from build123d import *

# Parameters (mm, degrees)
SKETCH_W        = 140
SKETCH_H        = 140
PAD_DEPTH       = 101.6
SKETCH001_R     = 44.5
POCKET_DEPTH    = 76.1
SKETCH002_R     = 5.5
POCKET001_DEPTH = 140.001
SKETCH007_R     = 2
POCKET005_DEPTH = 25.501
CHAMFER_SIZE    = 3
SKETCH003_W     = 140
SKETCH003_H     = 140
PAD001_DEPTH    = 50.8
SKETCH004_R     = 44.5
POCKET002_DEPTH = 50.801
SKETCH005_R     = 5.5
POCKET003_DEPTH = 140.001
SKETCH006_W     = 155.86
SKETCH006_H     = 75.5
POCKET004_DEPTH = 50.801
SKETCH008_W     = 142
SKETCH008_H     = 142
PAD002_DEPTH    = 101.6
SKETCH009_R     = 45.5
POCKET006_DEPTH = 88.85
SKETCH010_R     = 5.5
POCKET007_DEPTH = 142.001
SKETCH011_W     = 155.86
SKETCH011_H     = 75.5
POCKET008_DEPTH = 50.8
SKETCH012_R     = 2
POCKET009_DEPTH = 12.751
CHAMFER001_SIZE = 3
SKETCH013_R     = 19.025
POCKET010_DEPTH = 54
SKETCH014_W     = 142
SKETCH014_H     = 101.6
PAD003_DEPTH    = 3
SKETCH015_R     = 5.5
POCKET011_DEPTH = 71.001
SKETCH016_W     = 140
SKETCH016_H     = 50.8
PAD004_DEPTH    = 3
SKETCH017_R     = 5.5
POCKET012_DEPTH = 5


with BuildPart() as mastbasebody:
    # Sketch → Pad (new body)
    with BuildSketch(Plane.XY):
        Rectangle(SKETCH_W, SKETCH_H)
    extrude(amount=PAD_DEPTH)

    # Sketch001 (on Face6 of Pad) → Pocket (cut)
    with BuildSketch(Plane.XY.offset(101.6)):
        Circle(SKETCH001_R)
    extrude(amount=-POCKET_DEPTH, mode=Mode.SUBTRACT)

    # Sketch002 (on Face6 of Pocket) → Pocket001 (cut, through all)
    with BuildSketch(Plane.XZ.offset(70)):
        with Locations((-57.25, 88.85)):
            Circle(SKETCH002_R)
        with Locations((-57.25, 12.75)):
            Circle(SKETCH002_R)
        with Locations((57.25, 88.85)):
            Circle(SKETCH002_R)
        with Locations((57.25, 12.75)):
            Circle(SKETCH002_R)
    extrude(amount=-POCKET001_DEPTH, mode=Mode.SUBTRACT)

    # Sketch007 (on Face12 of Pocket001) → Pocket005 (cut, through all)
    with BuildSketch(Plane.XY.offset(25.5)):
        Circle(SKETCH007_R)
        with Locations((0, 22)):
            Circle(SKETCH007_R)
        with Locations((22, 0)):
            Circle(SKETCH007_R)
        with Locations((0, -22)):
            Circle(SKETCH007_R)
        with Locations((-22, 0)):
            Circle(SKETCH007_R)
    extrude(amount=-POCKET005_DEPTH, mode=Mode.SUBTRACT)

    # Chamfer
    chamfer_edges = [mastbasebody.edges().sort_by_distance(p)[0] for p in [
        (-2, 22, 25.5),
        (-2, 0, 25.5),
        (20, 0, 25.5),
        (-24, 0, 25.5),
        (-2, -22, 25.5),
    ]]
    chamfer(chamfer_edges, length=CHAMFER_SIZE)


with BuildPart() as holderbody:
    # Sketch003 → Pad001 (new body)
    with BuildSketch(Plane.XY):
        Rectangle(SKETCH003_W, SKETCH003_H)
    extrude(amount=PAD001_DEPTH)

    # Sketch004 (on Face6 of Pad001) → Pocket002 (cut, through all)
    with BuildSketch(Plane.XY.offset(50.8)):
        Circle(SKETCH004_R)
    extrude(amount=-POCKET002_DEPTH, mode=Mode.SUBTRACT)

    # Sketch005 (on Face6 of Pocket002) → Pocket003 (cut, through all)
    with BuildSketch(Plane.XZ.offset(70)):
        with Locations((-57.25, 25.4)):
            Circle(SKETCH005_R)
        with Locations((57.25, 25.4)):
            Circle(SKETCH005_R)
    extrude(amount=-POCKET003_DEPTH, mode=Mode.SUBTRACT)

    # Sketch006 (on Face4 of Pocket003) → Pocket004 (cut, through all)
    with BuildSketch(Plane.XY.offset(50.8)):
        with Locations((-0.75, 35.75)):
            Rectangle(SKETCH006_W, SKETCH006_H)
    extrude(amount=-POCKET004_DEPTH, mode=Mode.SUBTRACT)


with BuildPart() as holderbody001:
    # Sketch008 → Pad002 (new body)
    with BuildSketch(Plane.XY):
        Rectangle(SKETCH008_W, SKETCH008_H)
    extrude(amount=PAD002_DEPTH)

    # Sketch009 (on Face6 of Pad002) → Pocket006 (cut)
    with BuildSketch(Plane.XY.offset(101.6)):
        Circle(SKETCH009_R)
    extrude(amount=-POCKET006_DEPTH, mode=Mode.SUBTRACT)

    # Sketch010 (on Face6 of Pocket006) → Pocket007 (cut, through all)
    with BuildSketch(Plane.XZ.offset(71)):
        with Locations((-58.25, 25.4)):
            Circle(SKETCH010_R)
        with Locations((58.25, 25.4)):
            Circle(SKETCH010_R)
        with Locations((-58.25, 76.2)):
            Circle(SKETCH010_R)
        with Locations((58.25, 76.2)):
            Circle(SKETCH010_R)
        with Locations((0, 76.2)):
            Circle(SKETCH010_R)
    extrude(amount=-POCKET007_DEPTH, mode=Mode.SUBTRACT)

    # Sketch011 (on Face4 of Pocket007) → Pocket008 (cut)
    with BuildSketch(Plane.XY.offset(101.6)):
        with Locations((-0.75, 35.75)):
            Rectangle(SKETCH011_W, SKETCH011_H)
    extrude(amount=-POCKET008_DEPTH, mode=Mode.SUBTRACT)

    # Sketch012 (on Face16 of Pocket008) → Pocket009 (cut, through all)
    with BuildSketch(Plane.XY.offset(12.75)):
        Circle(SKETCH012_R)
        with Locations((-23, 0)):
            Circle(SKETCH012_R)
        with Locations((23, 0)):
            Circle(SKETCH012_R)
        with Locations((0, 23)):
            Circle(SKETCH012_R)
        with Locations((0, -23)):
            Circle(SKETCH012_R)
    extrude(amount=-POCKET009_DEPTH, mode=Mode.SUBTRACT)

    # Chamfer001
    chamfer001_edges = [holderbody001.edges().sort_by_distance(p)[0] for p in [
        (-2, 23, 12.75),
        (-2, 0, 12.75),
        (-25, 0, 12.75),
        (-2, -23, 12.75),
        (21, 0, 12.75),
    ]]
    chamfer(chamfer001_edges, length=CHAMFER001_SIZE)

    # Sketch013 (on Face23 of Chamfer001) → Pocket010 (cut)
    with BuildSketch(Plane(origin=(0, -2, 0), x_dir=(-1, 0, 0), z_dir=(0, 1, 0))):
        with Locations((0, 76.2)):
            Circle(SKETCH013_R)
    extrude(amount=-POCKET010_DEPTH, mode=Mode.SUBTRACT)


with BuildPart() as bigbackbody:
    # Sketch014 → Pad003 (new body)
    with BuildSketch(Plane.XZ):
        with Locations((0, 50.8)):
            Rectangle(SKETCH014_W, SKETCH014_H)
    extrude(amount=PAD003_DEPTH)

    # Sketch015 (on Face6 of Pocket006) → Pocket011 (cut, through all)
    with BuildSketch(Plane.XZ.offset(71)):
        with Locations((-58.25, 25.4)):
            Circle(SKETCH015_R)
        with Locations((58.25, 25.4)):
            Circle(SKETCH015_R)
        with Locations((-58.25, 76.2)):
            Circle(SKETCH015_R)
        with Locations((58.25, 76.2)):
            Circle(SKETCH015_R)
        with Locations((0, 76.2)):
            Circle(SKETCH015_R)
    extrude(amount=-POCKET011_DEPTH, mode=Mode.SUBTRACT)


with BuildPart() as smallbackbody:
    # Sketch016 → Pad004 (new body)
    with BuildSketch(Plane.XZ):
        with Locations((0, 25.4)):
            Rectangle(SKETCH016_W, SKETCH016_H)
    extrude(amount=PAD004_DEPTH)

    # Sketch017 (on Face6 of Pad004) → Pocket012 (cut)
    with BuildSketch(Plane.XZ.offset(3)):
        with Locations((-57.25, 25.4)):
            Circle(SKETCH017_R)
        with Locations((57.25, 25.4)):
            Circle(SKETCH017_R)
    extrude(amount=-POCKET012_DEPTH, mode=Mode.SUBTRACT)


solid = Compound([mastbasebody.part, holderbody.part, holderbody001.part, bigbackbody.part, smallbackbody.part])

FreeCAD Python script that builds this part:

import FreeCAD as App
import Part
import Sketcher
from FreeCAD import Vector


def edges_at(feature, points):
    """Names of the edges that pass closest to the given points."""
    edges = feature.Shape.Edges
    near = lambda p: min(range(len(edges)), key=lambda i: edges[i].distToShape(Part.Vertex(*p))[0])
    return sorted({f"Edge{near(p) + 1}" for p in points})


def add_polygon(sketch, points):
    """Adds a closed chain of lines whose ends are joined by coincident constraints."""
    first, n = sketch.GeometryCount, len(points)
    for a, b in zip(points, points[1:] + points[:1]):
        sketch.addGeometry(Part.LineSegment(App.Vector(*a, 0), App.Vector(*b, 0)), False)
    for i in range(n):
        sketch.addConstraint(Sketcher.Constraint("Coincident", first + i, 2, first + (i + 1) % n, 1))

doc = App.newDocument("Part")
body = doc.addObject("PartDesign::Body", "Body")

# Sketch on XY plane
sketch1 = body.newObject("Sketcher::SketchObject", "Sketch")
sketch1.AttachmentSupport = (doc.getObject("XY_Plane"), [""])
sketch1.MapMode = "FlatFace"
add_polygon(sketch1, [(-70, 70), (-70, -70), (70, -70), (70, 70)])  # lines 0-3
sketch1.addConstraint(Sketcher.Constraint("Vertical", 0))
sketch1.addConstraint(Sketcher.Constraint("Horizontal", 1))
sketch1.addConstraint(Sketcher.Constraint("Vertical", 2))
sketch1.addConstraint(Sketcher.Constraint("Horizontal", 3))
sketch1.addConstraint(Sketcher.Constraint("Symmetric", 0, 2, 2, 2, -1, 1))
sketch1.addConstraint(Sketcher.Constraint("Equal", 3, 0))
sketch1.addConstraint(Sketcher.Constraint("DistanceX", 1, 1, 1, 2, 140.0))
pad1 = body.newObject("PartDesign::Pad", "Pad")
pad1.Profile = sketch1
pad1.Length = 101.6

# Sketch on XY plane
sketch2 = body.newObject("Sketcher::SketchObject", "Sketch001")
sketch2.AttachmentSupport = (doc.getObject("XY_Plane"), [""])
sketch2.MapMode = "FlatFace"
sketch2.AttachmentOffset = App.Placement(Vector(0, 0, 101.6), App.Rotation())
sketch2.addGeometry(Part.Circle(Vector(0, 0, 0), Vector(0, 0, 1), 44), False)
sketch2.addConstraint(Sketcher.Constraint("Coincident", 0, 3, -1, 1))
sketch2.addConstraint(Sketcher.Constraint("Diameter", 0, 89.0))
pocket1 = body.newObject("PartDesign::Pocket", "Pocket")
pocket1.Profile = sketch2
pocket1.Length = 76.1

# Sketch on XZ plane
sketch3 = body.newObject("Sketcher::SketchObject", "Sketch002")
sketch3.AttachmentSupport = (doc.getObject("XZ_Plane"), [""])
sketch3.MapMode = "FlatFace"
sketch3.AttachmentOffset = App.Placement(Vector(0, 0, 70), App.Rotation())
sketch3.addGeometry(Part.Circle(Vector(-57, 89, 0), Vector(0, 0, 1), 6), False)
sketch3.addGeometry(Part.Circle(Vector(-57, 13, 0), Vector(0, 0, 1), 6), False)
sketch3.addGeometry(Part.Circle(Vector(57, 89, 0), Vector(0, 0, 1), 6), False)
sketch3.addGeometry(Part.Circle(Vector(57, 13, 0), Vector(0, 0, 1), 6), False)
sketch3.addConstraint(Sketcher.Constraint("Equal", 0, 1))
sketch3.addConstraint(Sketcher.Constraint("Equal", 1, 2))
sketch3.addConstraint(Sketcher.Constraint("Equal", 2, 3))
sketch3.addConstraint(Sketcher.Constraint("Symmetric", 0, 3, 2, 3, -2))
sketch3.addConstraint(Sketcher.Constraint("Symmetric", 1, 3, 3, 3, -2))
sketch3.addConstraint(Sketcher.Constraint("Vertical", 0, 3, 1, 3))
sketch3.addConstraint(Sketcher.Constraint("Diameter", 0, 11.0))
sketch3.addConstraint(Sketcher.Constraint("DistanceY", 1, 3, 0, 3, 76.1))
sketch3.addConstraint(Sketcher.Constraint("DistanceX", 0, 3, 2, 3, 114.5))
sketch3.addConstraint(Sketcher.Constraint("DistanceY", -1, 1, 0, 3, 88.85))
pocket2 = body.newObject("PartDesign::Pocket", "Pocket001")
pocket2.Profile = sketch3
pocket2.Type = "ThroughAll"

# Sketch on XY plane
sketch4 = body.newObject("Sketcher::SketchObject", "Sketch003")
sketch4.AttachmentSupport = (doc.getObject("XY_Plane"), [""])
sketch4.MapMode = "FlatFace"
sketch4.AttachmentOffset = App.Placement(Vector(0, 0, 25.5), App.Rotation())
sketch4.addGeometry(Part.Circle(Vector(0, 0, 0), Vector(0, 0, 1), 2), False)
sketch4.addGeometry(Part.Circle(Vector(0, 22, 0), Vector(0, 0, 1), 2), False)
sketch4.addGeometry(Part.Circle(Vector(22, 0, 0), Vector(0, 0, 1), 2), False)
sketch4.addGeometry(Part.Circle(Vector(0, -22, 0), Vector(0, 0, 1), 2), False)
sketch4.addGeometry(Part.Circle(Vector(-22, 0, 0), Vector(0, 0, 1), 2), False)
sketch4.addConstraint(Sketcher.Constraint("Coincident", 0, 3, -1, 1))
sketch4.addConstraint(Sketcher.Constraint("Equal", 0, 1))
sketch4.addConstraint(Sketcher.Constraint("Equal", 1, 2))
sketch4.addConstraint(Sketcher.Constraint("Equal", 2, 3))
sketch4.addConstraint(Sketcher.Constraint("Equal", 3, 4))
sketch4.addConstraint(Sketcher.Constraint("Symmetric", 1, 3, 3, 3, -1, 1))
sketch4.addConstraint(Sketcher.Constraint("Symmetric", 2, 3, 4, 3, -1, 1))
sketch4.addConstraint(Sketcher.Constraint("PointOnObject", 1, 3, -2))
sketch4.addConstraint(Sketcher.Constraint("PointOnObject", 2, 3, -1))
sketch4.addConstraint(Sketcher.Constraint("Diameter", 0, 4.0))
sketch4.addConstraint(Sketcher.Constraint("DistanceY", -1, 1, 1, 3, 22.0))
sketch4.addConstraint(Sketcher.Constraint("DistanceX", -1, 1, 2, 3, 22.0))
pocket3 = body.newObject("PartDesign::Pocket", "Pocket002")
pocket3.Profile = sketch4
pocket3.Type = "ThroughAll"
doc.recompute()

chamfer = body.newObject("PartDesign::Chamfer", "Chamfer")
chamfer.Base = (pocket3, edges_at(pocket3, [
    (-2, 22, 25.5),
    (-2, 0, 25.5),
    (20, 0, 25.5),
    (-24, 0, 25.5),
    (-2, -22, 25.5),
]))
chamfer.Size = 3
body2 = doc.addObject("PartDesign::Body", "Body001")

# Sketch on XY plane
sketch5 = body2.newObject("Sketcher::SketchObject", "Sketch004")
sketch5.AttachmentSupport = (doc.getObject("XY_Plane001"), [""])
sketch5.MapMode = "FlatFace"
add_polygon(sketch5, [(-70, 70), (-70, -70), (70, -70), (70, 70)])  # lines 0-3
sketch5.addConstraint(Sketcher.Constraint("Vertical", 0))
sketch5.addConstraint(Sketcher.Constraint("Horizontal", 1))
sketch5.addConstraint(Sketcher.Constraint("Vertical", 2))
sketch5.addConstraint(Sketcher.Constraint("Horizontal", 3))
sketch5.addConstraint(Sketcher.Constraint("Symmetric", 0, 2, 2, 2, -1, 1))
sketch5.addConstraint(Sketcher.Constraint("Equal", 3, 0))
sketch5.addConstraint(Sketcher.Constraint("DistanceX", 1, 1, 1, 2, 140.0))
pad2 = body2.newObject("PartDesign::Pad", "Pad001")
pad2.Profile = sketch5
pad2.Length = 50.8

# Sketch on XY plane
sketch6 = body2.newObject("Sketcher::SketchObject", "Sketch005")
sketch6.AttachmentSupport = (doc.getObject("XY_Plane001"), [""])
sketch6.MapMode = "FlatFace"
sketch6.AttachmentOffset = App.Placement(Vector(0, 0, 50.8), App.Rotation())
sketch6.addGeometry(Part.Circle(Vector(0, 0, 0), Vector(0, 0, 1), 44), False)
sketch6.addConstraint(Sketcher.Constraint("Coincident", 0, 3, -1, 1))
sketch6.addConstraint(Sketcher.Constraint("Diameter", 0, 89.0))
pocket4 = body2.newObject("PartDesign::Pocket", "Pocket003")
pocket4.Profile = sketch6
pocket4.Type = "ThroughAll"

# Sketch on XZ plane
sketch7 = body2.newObject("Sketcher::SketchObject", "Sketch006")
sketch7.AttachmentSupport = (doc.getObject("XZ_Plane001"), [""])
sketch7.MapMode = "FlatFace"
sketch7.AttachmentOffset = App.Placement(Vector(0, 0, 70), App.Rotation())
sketch7.addGeometry(Part.Circle(Vector(-57, 25, 0), Vector(0, 0, 1), 6), False)
sketch7.addGeometry(Part.Circle(Vector(57, 25, 0), Vector(0, 0, 1), 6), False)
sketch7.addConstraint(Sketcher.Constraint("Equal", 0, 1))
sketch7.addConstraint(Sketcher.Constraint("Symmetric", 0, 3, 1, 3, -2))
sketch7.addConstraint(Sketcher.Constraint("Diameter", 0, 11.0))
sketch7.addConstraint(Sketcher.Constraint("DistanceY", -1, 1, 0, 3, 25.4))
sketch7.addConstraint(Sketcher.Constraint("DistanceX", 0, 3, 1, 3, 114.5))
pocket5 = body2.newObject("PartDesign::Pocket", "Pocket004")
pocket5.Profile = sketch7
pocket5.Type = "ThroughAll"

# Sketch on XY plane
sketch8 = body2.newObject("Sketcher::SketchObject", "Sketch007")
sketch8.AttachmentSupport = (doc.getObject("XY_Plane001"), [""])
sketch8.MapMode = "FlatFace"
sketch8.AttachmentOffset = App.Placement(Vector(0, 0, 50.8), App.Rotation())
add_polygon(sketch8, [(-79, 74), (-79, -2), (77, -2), (77, 74)])  # lines 0-3
sketch8.addConstraint(Sketcher.Constraint("Vertical", 0))
sketch8.addConstraint(Sketcher.Constraint("Horizontal", 1))
sketch8.addConstraint(Sketcher.Constraint("Vertical", 2))
sketch8.addConstraint(Sketcher.Constraint("Horizontal", 3))
sketch8.addConstraint(Sketcher.Constraint("DistanceY", 0, 2, 0, 1, 75.5))
sketch8.addConstraint(Sketcher.Constraint("DistanceY", 0, 2, -1, 1, 2.0))
sketch8.addConstraint(Sketcher.Constraint("DistanceX", 1, 1, 1, 2, 155.86))
sketch8.addConstraint(Sketcher.Constraint("DistanceX", 0, 2, -1, 1, 78.68))
pocket6 = body2.newObject("PartDesign::Pocket", "Pocket005")
pocket6.Profile = sketch8
pocket6.Type = "ThroughAll"
body3 = doc.addObject("PartDesign::Body", "Body002")

# Sketch on XY plane
sketch9 = body3.newObject("Sketcher::SketchObject", "Sketch008")
sketch9.AttachmentSupport = (doc.getObject("XY_Plane002"), [""])
sketch9.MapMode = "FlatFace"
add_polygon(sketch9, [(-71, 71), (-71, -71), (71, -71), (71, 71)])  # lines 0-3
sketch9.addConstraint(Sketcher.Constraint("Vertical", 0))
sketch9.addConstraint(Sketcher.Constraint("Horizontal", 1))
sketch9.addConstraint(Sketcher.Constraint("Vertical", 2))
sketch9.addConstraint(Sketcher.Constraint("Horizontal", 3))
sketch9.addConstraint(Sketcher.Constraint("Symmetric", 0, 2, 2, 2, -1, 1))
sketch9.addConstraint(Sketcher.Constraint("Equal", 3, 0))
sketch9.addConstraint(Sketcher.Constraint("DistanceX", 1, 1, 1, 2, 142.0))
pad3 = body3.newObject("PartDesign::Pad", "Pad002")
pad3.Profile = sketch9
pad3.Length = 101.6

# Sketch on XY plane
sketch10 = body3.newObject("Sketcher::SketchObject", "Sketch009")
sketch10.AttachmentSupport = (doc.getObject("XY_Plane002"), [""])
sketch10.MapMode = "FlatFace"
sketch10.AttachmentOffset = App.Placement(Vector(0, 0, 101.6), App.Rotation())
sketch10.addGeometry(Part.Circle(Vector(0, 0, 0), Vector(0, 0, 1), 46), False)
sketch10.addConstraint(Sketcher.Constraint("Coincident", 0, 3, -1, 1))
sketch10.addConstraint(Sketcher.Constraint("Diameter", 0, 91.0))
pocket7 = body3.newObject("PartDesign::Pocket", "Pocket006")
pocket7.Profile = sketch10
pocket7.Length = 88.85

# Sketch on XZ plane
sketch11 = body3.newObject("Sketcher::SketchObject", "Sketch010")
sketch11.AttachmentSupport = (doc.getObject("XZ_Plane002"), [""])
sketch11.MapMode = "FlatFace"
sketch11.AttachmentOffset = App.Placement(Vector(0, 0, 71), App.Rotation())
sketch11.addGeometry(Part.Circle(Vector(-58, 25, 0), Vector(0, 0, 1), 6), False)
sketch11.addGeometry(Part.Circle(Vector(58, 25, 0), Vector(0, 0, 1), 6), False)
sketch11.addGeometry(Part.Circle(Vector(-58, 76, 0), Vector(0, 0, 1), 6), False)
sketch11.addGeometry(Part.Circle(Vector(58, 76, 0), Vector(0, 0, 1), 6), False)
sketch11.addGeometry(Part.Circle(Vector(0, 76, 0), Vector(0, 0, 1), 6), False)
sketch11.addConstraint(Sketcher.Constraint("Equal", 0, 1))
sketch11.addConstraint(Sketcher.Constraint("Equal", 1, 2))
sketch11.addConstraint(Sketcher.Constraint("Equal", 2, 3))
sketch11.addConstraint(Sketcher.Constraint("Equal", 3, 4))
sketch11.addConstraint(Sketcher.Constraint("Symmetric", 0, 3, 1, 3, -2))
sketch11.addConstraint(Sketcher.Constraint("Symmetric", 2, 3, 3, 3, -2))
sketch11.addConstraint(Sketcher.Constraint("PointOnObject", 4, 3, -2))
sketch11.addConstraint(Sketcher.Constraint("Horizontal", 3, 3, 4, 3))
sketch11.addConstraint(Sketcher.Constraint("Vertical", 0, 3, 2, 3))
sketch11.addConstraint(Sketcher.Constraint("Diameter", 0, 11.0))
sketch11.addConstraint(Sketcher.Constraint("DistanceY", -1, 1, 0, 3, 25.4))
sketch11.addConstraint(Sketcher.Constraint("DistanceY", -1, 1, 2, 3, 76.2))
sketch11.addConstraint(Sketcher.Constraint("DistanceX", 0, 3, 1, 3, 116.5))
pocket8 = body3.newObject("PartDesign::Pocket", "Pocket007")
pocket8.Profile = sketch11
pocket8.Type = "ThroughAll"

# Sketch on XY plane
sketch12 = body3.newObject("Sketcher::SketchObject", "Sketch011")
sketch12.AttachmentSupport = (doc.getObject("XY_Plane002"), [""])
sketch12.MapMode = "FlatFace"
sketch12.AttachmentOffset = App.Placement(Vector(0, 0, 101.6), App.Rotation())
add_polygon(sketch12, [(-79, 74), (-79, -2), (77, -2), (77, 74)])  # lines 0-3
sketch12.addConstraint(Sketcher.Constraint("Vertical", 0))
sketch12.addConstraint(Sketcher.Constraint("Horizontal", 1))
sketch12.addConstraint(Sketcher.Constraint("Vertical", 2))
sketch12.addConstraint(Sketcher.Constraint("Horizontal", 3))
sketch12.addConstraint(Sketcher.Constraint("DistanceY", 0, 2, 0, 1, 75.5))
sketch12.addConstraint(Sketcher.Constraint("DistanceY", 0, 2, -1, 1, 2.0))
sketch12.addConstraint(Sketcher.Constraint("DistanceX", 1, 1, 1, 2, 155.86))
sketch12.addConstraint(Sketcher.Constraint("DistanceX", 0, 2, -1, 1, 78.68))
pocket9 = body3.newObject("PartDesign::Pocket", "Pocket008")
pocket9.Profile = sketch12
pocket9.Length = 50.8

# Sketch on XY plane
sketch13 = body3.newObject("Sketcher::SketchObject", "Sketch012")
sketch13.AttachmentSupport = (doc.getObject("XY_Plane002"), [""])
sketch13.MapMode = "FlatFace"
sketch13.AttachmentOffset = App.Placement(Vector(0, 0, 12.75), App.Rotation())
sketch13.addGeometry(Part.Circle(Vector(0, 0, 0), Vector(0, 0, 1), 2), False)
sketch13.addGeometry(Part.Circle(Vector(-23, 0, 0), Vector(0, 0, 1), 2), False)
sketch13.addGeometry(Part.Circle(Vector(23, 0, 0), Vector(0, 0, 1), 2), False)
sketch13.addGeometry(Part.Circle(Vector(0, 23, 0), Vector(0, 0, 1), 2), False)
sketch13.addGeometry(Part.Circle(Vector(0, -23, 0), Vector(0, 0, 1), 2), False)
sketch13.addConstraint(Sketcher.Constraint("Coincident", 0, 3, -1, 1))
sketch13.addConstraint(Sketcher.Constraint("Equal", 0, 1))
sketch13.addConstraint(Sketcher.Constraint("Equal", 1, 2))
sketch13.addConstraint(Sketcher.Constraint("Equal", 2, 3))
sketch13.addConstraint(Sketcher.Constraint("Equal", 3, 4))
sketch13.addConstraint(Sketcher.Constraint("Symmetric", 1, 3, 2, 3, -1, 1))
sketch13.addConstraint(Sketcher.Constraint("Symmetric", 3, 3, 4, 3, -1, 1))
sketch13.addConstraint(Sketcher.Constraint("PointOnObject", 1, 3, -1))
sketch13.addConstraint(Sketcher.Constraint("PointOnObject", 3, 3, -2))
sketch13.addConstraint(Sketcher.Constraint("Diameter", 0, 4.0))
sketch13.addConstraint(Sketcher.Constraint("DistanceX", 1, 3, -1, 1, 23.0))
sketch13.addConstraint(Sketcher.Constraint("DistanceY", -1, 1, 3, 3, 23.0))
pocket10 = body3.newObject("PartDesign::Pocket", "Pocket009")
pocket10.Profile = sketch13
pocket10.Type = "ThroughAll"
doc.recompute()

chamfer2 = body3.newObject("PartDesign::Chamfer", "Chamfer001")
chamfer2.Base = (pocket10, edges_at(pocket10, [
    (-2, 23, 12.75),
    (-2, 0, 12.75),
    (-25, 0, 12.75),
    (-2, -23, 12.75),
    (21, 0, 12.75),
]))
chamfer2.Size = 3

# Sketch on XZ plane
sketch14 = body3.newObject("Sketcher::SketchObject", "Sketch013")
sketch14.AttachmentSupport = (doc.getObject("XZ_Plane002"), [""])
sketch14.MapMode = "FlatFace"
sketch14.AttachmentOffset = App.Placement(Vector(0, 0, 2), App.Rotation())
sketch14.addGeometry(Part.Circle(Vector(0, 76, 0), Vector(0, 0, 1), 19), False)
sketch14.addConstraint(Sketcher.Constraint("PointOnObject", 0, 3, -2))
sketch14.addConstraint(Sketcher.Constraint("Diameter", 0, 38.05))
sketch14.addConstraint(Sketcher.Constraint("DistanceY", -1, 1, 0, 3, 76.2))
pocket11 = body3.newObject("PartDesign::Pocket", "Pocket010")
pocket11.Profile = sketch14
pocket11.Length = 54
pocket11.Reversed = True
body4 = doc.addObject("PartDesign::Body", "Body003")

# Sketch on XZ plane
sketch15 = body4.newObject("Sketcher::SketchObject", "Sketch014")
sketch15.AttachmentSupport = (doc.getObject("XZ_Plane003"), [""])
sketch15.MapMode = "FlatFace"
add_polygon(sketch15, [(-71, 102), (-71, 0), (71, 0), (71, 102)])  # lines 0-3
sketch15.addConstraint(Sketcher.Constraint("Vertical", 0))
sketch15.addConstraint(Sketcher.Constraint("Horizontal", 1))
sketch15.addConstraint(Sketcher.Constraint("Vertical", 2))
sketch15.addConstraint(Sketcher.Constraint("Horizontal", 3))
sketch15.addConstraint(Sketcher.Constraint("Symmetric", 0, 2, 1, 2, -1, 1))
sketch15.addConstraint(Sketcher.Constraint("DistanceX", 1, 1, 1, 2, 142.0))
sketch15.addConstraint(Sketcher.Constraint("DistanceY", 0, 2, 0, 1, 101.6))
pad4 = body4.newObject("PartDesign::Pad", "Pad003")
pad4.Profile = sketch15
pad4.Length = 3

# Sketch on XZ plane
sketch16 = body4.newObject("Sketcher::SketchObject", "Sketch015")
sketch16.AttachmentSupport = (doc.getObject("XZ_Plane003"), [""])
sketch16.MapMode = "FlatFace"
sketch16.AttachmentOffset = App.Placement(Vector(0, 0, 71), App.Rotation())
sketch16.addGeometry(Part.Circle(Vector(-58, 25, 0), Vector(0, 0, 1), 6), False)
sketch16.addGeometry(Part.Circle(Vector(58, 25, 0), Vector(0, 0, 1), 6), False)
sketch16.addGeometry(Part.Circle(Vector(-58, 76, 0), Vector(0, 0, 1), 6), False)
sketch16.addGeometry(Part.Circle(Vector(58, 76, 0), Vector(0, 0, 1), 6), False)
sketch16.addGeometry(Part.Circle(Vector(0, 76, 0), Vector(0, 0, 1), 6), False)
sketch16.addConstraint(Sketcher.Constraint("Equal", 0, 1))
sketch16.addConstraint(Sketcher.Constraint("Equal", 1, 2))
sketch16.addConstraint(Sketcher.Constraint("Equal", 2, 3))
sketch16.addConstraint(Sketcher.Constraint("Equal", 3, 4))
sketch16.addConstraint(Sketcher.Constraint("Symmetric", 0, 3, 1, 3, -2))
sketch16.addConstraint(Sketcher.Constraint("Symmetric", 2, 3, 3, 3, -2))
sketch16.addConstraint(Sketcher.Constraint("PointOnObject", 4, 3, -2))
sketch16.addConstraint(Sketcher.Constraint("Horizontal", 3, 3, 4, 3))
sketch16.addConstraint(Sketcher.Constraint("Vertical", 0, 3, 2, 3))
sketch16.addConstraint(Sketcher.Constraint("Diameter", 0, 11.0))
sketch16.addConstraint(Sketcher.Constraint("DistanceY", -1, 1, 0, 3, 25.4))
sketch16.addConstraint(Sketcher.Constraint("DistanceY", -1, 1, 2, 3, 76.2))
sketch16.addConstraint(Sketcher.Constraint("DistanceX", 0, 3, 1, 3, 116.5))
pocket12 = body4.newObject("PartDesign::Pocket", "Pocket011")
pocket12.Profile = sketch16
pocket12.Type = "ThroughAll"
body5 = doc.addObject("PartDesign::Body", "Body004")

# Sketch on XZ plane
sketch17 = body5.newObject("Sketcher::SketchObject", "Sketch016")
sketch17.AttachmentSupport = (doc.getObject("XZ_Plane004"), [""])
sketch17.MapMode = "FlatFace"
add_polygon(sketch17, [(-70, 51), (-70, 0), (70, 0), (70, 51)])  # lines 0-3
sketch17.addConstraint(Sketcher.Constraint("Vertical", 0))
sketch17.addConstraint(Sketcher.Constraint("Horizontal", 1))
sketch17.addConstraint(Sketcher.Constraint("Vertical", 2))
sketch17.addConstraint(Sketcher.Constraint("Horizontal", 3))
sketch17.addConstraint(Sketcher.Constraint("Symmetric", 0, 2, 1, 2, -1, 1))
sketch17.addConstraint(Sketcher.Constraint("DistanceX", 1, 1, 1, 2, 140.0))
sketch17.addConstraint(Sketcher.Constraint("DistanceY", 0, 2, 0, 1, 50.8))
pad5 = body5.newObject("PartDesign::Pad", "Pad004")
pad5.Profile = sketch17
pad5.Length = 3

# Sketch on XZ plane
sketch18 = body5.newObject("Sketcher::SketchObject", "Sketch017")
sketch18.AttachmentSupport = (doc.getObject("XZ_Plane004"), [""])
sketch18.MapMode = "FlatFace"
sketch18.AttachmentOffset = App.Placement(Vector(0, 0, 3), App.Rotation())
sketch18.addGeometry(Part.Circle(Vector(-57, 25, 0), Vector(0, 0, 1), 6), False)
sketch18.addGeometry(Part.Circle(Vector(57, 25, 0), Vector(0, 0, 1), 6), False)
sketch18.addConstraint(Sketcher.Constraint("Equal", 0, 1))
sketch18.addConstraint(Sketcher.Constraint("Symmetric", 0, 3, 1, 3, -2))
sketch18.addConstraint(Sketcher.Constraint("Diameter", 0, 11.0))
sketch18.addConstraint(Sketcher.Constraint("DistanceY", -1, 1, 0, 3, 25.4))
sketch18.addConstraint(Sketcher.Constraint("DistanceX", 0, 3, 1, 3, 114.5))
pocket13 = body5.newObject("PartDesign::Pocket", "Pocket012")
pocket13.Profile = sketch18
pocket13.Length = 5

doc.recompute()
